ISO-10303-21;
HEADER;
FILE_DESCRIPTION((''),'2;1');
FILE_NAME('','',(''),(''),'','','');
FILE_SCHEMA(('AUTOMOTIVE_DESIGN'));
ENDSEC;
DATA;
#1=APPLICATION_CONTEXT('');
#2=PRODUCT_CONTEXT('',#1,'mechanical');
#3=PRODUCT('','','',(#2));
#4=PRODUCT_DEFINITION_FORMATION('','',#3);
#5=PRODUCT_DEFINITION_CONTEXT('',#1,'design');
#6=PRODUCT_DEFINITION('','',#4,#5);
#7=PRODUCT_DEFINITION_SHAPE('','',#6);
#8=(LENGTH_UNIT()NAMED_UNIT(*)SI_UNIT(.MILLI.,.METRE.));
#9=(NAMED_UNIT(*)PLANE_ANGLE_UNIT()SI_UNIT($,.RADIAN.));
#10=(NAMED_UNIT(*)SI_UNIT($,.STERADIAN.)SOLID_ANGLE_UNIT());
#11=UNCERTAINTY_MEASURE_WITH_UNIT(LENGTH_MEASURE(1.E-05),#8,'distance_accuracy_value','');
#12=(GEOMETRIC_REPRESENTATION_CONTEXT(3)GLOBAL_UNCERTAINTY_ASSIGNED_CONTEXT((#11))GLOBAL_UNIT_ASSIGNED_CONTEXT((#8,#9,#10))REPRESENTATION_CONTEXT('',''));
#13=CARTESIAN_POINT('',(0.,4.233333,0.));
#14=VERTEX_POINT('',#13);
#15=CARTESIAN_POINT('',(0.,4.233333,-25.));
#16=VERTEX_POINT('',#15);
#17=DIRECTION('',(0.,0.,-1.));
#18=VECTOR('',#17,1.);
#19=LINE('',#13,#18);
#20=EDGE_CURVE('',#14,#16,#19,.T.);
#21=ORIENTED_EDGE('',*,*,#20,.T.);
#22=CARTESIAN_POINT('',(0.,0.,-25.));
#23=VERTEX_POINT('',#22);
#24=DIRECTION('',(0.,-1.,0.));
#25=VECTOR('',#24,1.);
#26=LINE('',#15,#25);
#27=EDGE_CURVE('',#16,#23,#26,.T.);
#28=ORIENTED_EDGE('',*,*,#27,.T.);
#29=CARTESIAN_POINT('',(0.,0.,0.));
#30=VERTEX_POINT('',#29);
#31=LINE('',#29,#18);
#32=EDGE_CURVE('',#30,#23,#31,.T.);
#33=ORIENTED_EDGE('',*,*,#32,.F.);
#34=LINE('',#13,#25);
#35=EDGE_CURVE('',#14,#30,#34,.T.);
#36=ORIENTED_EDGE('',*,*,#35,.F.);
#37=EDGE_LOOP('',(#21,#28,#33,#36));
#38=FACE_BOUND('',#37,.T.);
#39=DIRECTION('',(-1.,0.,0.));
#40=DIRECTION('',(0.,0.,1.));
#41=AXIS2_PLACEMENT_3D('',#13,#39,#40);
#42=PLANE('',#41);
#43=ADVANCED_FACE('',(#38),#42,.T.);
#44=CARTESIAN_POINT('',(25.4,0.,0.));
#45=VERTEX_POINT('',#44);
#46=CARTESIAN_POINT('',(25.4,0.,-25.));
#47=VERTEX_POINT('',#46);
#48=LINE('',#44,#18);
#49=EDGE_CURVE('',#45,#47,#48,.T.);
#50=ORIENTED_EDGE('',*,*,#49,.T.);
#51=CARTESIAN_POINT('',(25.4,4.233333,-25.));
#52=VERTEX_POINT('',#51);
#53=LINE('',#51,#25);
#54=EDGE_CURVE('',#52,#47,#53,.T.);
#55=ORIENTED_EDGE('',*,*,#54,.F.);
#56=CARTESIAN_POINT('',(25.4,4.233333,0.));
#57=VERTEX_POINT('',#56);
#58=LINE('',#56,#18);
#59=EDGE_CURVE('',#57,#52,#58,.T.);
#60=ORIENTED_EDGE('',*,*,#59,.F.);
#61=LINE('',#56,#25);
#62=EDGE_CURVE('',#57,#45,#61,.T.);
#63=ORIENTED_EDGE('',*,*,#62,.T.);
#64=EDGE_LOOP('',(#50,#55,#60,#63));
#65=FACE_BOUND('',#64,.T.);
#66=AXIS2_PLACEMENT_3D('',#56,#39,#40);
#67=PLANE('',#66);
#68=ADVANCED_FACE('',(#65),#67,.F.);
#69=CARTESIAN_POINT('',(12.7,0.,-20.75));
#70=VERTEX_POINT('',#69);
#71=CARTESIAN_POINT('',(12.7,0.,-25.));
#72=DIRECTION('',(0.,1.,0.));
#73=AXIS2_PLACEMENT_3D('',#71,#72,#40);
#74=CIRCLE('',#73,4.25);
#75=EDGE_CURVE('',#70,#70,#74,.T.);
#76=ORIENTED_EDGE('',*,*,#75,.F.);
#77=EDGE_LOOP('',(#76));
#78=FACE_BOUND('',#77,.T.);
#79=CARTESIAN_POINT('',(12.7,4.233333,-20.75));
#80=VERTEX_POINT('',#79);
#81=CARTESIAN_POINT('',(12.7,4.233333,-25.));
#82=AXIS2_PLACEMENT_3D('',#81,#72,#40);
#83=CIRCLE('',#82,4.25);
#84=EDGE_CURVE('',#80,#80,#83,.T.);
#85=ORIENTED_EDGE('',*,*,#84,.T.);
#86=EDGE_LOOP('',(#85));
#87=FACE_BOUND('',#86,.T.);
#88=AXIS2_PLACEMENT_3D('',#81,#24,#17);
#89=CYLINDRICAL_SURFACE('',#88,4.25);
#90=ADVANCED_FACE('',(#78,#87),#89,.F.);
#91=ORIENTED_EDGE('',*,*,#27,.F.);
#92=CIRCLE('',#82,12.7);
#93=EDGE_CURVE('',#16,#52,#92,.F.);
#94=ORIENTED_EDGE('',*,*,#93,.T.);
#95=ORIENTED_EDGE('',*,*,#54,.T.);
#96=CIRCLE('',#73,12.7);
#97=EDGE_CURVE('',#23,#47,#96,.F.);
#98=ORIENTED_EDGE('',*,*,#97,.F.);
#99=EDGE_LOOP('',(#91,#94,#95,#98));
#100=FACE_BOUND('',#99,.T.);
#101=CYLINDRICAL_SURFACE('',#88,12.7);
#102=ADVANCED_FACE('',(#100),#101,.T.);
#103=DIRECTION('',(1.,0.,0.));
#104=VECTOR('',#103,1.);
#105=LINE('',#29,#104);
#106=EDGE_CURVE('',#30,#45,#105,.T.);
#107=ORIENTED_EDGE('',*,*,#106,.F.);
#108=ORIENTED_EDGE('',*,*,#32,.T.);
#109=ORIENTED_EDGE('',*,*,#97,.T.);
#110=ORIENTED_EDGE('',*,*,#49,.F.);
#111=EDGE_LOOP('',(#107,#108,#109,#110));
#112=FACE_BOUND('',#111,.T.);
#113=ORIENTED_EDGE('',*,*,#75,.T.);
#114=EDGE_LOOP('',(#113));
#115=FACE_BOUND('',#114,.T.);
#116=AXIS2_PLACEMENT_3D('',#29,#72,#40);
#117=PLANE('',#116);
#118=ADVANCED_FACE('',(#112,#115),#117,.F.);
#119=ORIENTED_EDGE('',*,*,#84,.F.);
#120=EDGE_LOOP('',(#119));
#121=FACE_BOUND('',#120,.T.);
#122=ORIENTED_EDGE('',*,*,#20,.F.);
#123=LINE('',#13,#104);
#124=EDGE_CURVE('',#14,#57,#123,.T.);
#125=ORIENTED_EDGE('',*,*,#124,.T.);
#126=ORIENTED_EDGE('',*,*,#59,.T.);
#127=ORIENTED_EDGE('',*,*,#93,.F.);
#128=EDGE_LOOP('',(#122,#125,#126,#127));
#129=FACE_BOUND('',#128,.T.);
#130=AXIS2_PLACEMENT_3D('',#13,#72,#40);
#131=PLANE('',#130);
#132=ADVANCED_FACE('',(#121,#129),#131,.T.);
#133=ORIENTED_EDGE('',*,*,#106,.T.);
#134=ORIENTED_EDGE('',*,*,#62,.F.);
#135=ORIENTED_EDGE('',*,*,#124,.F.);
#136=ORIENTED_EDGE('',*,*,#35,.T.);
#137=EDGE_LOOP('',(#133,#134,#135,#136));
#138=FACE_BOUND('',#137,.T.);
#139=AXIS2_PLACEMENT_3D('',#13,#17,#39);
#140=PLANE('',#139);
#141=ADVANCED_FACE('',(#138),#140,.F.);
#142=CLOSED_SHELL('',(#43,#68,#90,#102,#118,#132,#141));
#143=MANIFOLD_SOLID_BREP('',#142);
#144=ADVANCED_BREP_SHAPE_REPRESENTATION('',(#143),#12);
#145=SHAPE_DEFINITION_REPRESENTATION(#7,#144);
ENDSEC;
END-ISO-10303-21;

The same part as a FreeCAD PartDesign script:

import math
import FreeCAD as App
import Part
import Sketcher

V = App.Vector

doc = App.newDocument("Part")
body = doc.addObject("PartDesign::Body", "Body")

# Sketch on XZ plane
sketch1 = doc.addObject("Sketcher::SketchObject", "Sketch")
body.addObject(sketch1)
sketch1.AttachmentSupport = (doc.XZ_Plane, [""])
sketch1.MapMode = "FlatFace"
sketch1.addGeometry([
    Part.LineSegment(V(0, 0, 0), V(25.4, 0, 0)),  # 0
    Part.LineSegment(V(25.4, 0, 0), V(25.4, -25, 0)),  # 1
    Part.ArcOfCircle(Part.Circle(V(12.7, -25, 0), V(0, 0, 1), 12.7), math.radians(180), math.radians(360)),  # 2
    Part.LineSegment(V(0, -25, 0), V(0, 0, 0)),  # 3
    Part.Circle(V(12.7, -25, 0), V(0, 0, 1), 4.2),  # 4
], False)
sketch1.addConstraint([
    Sketcher.Constraint("Coincident", 0, 2, 1, 1),
    Sketcher.Constraint("Tangent", 1, 2, 2, 2),
    Sketcher.Constraint("Tangent", 2, 1, 3, 1),
    Sketcher.Constraint("Coincident", 3, 2, 0, 1),
    Sketcher.Constraint("Horizontal", 0),
    Sketcher.Constraint("Vertical", 1),
    Sketcher.Constraint("Vertical", 3),
    Sketcher.Constraint("Coincident", 3, 2, -1, 1),
    Sketcher.Constraint("Coincident", 4, 3, 2, 3),
    Sketcher.Constraint("Diameter", 4, 8.5),
    Sketcher.Constraint("Radius", 2, 12.7),
    Sketcher.Constraint("DistanceY", 1, 2, 1, 1, 25.0),
])
pad1 = doc.addObject("PartDesign::Pad", "Pad")
body.addObject(pad1)
pad1.Profile = sketch1
pad1.Length = 4.233333
pad1.Reversed = True

doc.recompute()
